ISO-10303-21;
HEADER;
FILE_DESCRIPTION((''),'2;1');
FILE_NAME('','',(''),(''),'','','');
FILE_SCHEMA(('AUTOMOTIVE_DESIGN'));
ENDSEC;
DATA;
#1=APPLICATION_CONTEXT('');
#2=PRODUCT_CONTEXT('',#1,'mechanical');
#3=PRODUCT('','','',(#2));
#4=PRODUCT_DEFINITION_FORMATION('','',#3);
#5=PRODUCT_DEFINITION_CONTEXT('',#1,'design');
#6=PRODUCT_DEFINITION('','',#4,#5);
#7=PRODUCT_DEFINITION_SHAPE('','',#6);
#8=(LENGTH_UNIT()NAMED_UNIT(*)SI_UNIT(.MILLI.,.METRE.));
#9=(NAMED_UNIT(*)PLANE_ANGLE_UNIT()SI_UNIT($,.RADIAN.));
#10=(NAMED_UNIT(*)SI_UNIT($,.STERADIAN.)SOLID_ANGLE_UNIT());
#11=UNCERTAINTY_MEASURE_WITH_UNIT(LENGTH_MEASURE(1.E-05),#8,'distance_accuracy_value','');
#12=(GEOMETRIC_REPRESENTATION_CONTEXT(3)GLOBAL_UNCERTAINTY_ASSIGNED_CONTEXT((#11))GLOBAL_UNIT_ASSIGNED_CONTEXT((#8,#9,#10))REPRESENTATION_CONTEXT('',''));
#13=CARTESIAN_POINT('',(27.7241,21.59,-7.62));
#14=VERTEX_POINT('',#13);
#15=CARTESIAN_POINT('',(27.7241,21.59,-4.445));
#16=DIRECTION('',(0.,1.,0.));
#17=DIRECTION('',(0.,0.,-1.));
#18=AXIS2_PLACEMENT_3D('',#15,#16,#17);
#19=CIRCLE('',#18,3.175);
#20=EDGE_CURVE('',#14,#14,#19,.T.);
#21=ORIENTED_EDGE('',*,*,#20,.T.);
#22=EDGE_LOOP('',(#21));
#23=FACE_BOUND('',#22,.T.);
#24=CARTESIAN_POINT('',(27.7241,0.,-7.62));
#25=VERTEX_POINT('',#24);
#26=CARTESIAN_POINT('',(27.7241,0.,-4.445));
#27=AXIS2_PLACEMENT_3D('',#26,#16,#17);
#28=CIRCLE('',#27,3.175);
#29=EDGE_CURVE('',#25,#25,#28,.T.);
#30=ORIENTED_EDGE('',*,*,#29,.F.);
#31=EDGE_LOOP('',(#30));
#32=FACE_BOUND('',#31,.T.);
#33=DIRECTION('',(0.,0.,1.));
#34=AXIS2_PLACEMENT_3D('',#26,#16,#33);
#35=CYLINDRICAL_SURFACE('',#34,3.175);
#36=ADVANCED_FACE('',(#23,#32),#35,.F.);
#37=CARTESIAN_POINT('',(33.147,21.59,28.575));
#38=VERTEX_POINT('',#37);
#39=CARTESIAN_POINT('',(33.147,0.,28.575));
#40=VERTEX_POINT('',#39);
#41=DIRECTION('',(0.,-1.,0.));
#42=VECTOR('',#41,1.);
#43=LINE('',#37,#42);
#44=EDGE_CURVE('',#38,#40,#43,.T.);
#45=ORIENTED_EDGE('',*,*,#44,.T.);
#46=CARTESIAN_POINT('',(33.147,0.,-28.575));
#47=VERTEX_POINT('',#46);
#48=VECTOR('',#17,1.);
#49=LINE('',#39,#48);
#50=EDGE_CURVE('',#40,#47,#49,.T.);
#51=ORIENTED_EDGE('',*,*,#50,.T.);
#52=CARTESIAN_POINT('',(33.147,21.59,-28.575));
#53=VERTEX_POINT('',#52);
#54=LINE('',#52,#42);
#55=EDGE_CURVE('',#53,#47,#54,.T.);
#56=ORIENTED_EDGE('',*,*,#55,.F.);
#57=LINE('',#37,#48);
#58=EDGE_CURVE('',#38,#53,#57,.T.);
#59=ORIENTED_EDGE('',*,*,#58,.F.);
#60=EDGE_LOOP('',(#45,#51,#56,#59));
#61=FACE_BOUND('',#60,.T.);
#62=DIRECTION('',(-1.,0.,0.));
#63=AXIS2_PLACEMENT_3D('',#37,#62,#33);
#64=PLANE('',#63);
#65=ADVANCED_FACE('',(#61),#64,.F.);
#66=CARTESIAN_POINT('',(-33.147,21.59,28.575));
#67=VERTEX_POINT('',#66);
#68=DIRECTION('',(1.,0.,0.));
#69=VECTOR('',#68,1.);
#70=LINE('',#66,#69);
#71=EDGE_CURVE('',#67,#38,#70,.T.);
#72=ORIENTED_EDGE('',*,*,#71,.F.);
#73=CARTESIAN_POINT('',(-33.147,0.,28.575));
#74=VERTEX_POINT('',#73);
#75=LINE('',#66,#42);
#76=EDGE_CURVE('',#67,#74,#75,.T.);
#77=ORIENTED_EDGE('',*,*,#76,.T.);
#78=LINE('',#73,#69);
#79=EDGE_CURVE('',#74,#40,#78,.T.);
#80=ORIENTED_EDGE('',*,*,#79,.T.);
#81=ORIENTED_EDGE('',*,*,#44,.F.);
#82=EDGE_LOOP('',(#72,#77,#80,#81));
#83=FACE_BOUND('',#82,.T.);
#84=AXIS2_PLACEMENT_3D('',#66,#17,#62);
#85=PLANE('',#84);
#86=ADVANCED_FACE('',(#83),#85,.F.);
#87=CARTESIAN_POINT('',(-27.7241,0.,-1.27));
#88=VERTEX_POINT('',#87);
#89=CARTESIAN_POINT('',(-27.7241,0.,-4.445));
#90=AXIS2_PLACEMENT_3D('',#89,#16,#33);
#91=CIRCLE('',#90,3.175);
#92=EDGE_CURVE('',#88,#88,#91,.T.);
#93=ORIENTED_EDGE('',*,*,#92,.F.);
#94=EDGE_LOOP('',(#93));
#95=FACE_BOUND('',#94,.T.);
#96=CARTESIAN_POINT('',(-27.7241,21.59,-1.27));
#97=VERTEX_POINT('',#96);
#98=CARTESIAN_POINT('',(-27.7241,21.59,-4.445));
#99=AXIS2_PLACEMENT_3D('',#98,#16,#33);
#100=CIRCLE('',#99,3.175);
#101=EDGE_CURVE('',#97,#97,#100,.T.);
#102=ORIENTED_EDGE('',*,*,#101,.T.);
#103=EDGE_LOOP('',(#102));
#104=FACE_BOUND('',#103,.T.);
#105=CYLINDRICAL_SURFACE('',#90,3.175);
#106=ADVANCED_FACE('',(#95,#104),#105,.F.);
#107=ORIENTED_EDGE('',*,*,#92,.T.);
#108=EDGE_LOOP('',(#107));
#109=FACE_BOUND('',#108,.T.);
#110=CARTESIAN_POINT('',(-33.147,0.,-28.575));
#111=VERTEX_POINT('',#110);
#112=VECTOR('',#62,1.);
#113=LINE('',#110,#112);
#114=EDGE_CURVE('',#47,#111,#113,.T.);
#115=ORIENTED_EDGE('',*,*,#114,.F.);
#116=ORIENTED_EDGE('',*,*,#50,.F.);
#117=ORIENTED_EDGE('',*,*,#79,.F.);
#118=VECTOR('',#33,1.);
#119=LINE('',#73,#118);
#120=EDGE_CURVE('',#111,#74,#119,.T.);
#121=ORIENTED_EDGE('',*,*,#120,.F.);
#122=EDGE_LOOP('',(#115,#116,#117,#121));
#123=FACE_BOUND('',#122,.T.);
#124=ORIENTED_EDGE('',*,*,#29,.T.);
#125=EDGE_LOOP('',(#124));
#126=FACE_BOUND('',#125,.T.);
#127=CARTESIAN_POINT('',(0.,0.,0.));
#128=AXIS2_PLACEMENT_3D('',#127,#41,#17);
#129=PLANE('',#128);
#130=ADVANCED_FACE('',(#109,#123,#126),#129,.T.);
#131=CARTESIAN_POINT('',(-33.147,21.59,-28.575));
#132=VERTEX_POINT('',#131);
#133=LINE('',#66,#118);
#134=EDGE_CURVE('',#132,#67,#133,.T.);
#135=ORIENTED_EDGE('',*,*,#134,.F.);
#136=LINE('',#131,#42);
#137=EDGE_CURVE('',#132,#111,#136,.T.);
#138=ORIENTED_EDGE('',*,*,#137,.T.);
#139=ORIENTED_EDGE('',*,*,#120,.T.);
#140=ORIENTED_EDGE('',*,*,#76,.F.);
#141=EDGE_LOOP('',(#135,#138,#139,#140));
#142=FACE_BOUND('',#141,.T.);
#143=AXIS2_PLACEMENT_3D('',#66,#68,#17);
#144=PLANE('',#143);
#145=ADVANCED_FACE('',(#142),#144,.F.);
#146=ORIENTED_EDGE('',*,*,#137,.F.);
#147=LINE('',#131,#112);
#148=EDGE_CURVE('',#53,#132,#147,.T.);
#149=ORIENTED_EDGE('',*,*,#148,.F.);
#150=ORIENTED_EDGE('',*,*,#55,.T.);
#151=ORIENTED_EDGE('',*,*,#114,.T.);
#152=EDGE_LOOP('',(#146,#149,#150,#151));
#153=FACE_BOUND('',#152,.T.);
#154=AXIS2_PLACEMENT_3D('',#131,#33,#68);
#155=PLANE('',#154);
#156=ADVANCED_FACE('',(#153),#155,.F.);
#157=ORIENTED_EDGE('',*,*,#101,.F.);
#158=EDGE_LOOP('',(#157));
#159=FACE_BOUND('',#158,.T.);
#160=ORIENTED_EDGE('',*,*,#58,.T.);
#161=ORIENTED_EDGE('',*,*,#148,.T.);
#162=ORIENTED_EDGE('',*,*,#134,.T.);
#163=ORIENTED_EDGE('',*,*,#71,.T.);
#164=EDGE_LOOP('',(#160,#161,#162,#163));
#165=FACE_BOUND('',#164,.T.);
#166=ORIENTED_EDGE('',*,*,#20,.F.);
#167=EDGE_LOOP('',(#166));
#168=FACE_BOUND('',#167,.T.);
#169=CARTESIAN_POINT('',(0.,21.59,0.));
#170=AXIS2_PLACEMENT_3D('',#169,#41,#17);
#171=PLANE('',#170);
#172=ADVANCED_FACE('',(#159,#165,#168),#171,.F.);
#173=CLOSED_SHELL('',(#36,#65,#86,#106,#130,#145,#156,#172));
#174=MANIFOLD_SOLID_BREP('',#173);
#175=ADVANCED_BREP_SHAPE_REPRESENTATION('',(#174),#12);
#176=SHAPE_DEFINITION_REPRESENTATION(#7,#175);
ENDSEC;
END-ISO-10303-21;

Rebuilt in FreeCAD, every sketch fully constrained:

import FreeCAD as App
import Part
import Sketcher
Q = App.Units.Quantity


def add_polygon(sketch, points):
    """Adds a closed chain of lines whose ends are joined by coincident constraints."""
    first, n = sketch.GeometryCount, len(points)
    for a, b in zip(points, points[1:] + points[:1]):
        sketch.addGeometry(Part.LineSegment(App.Vector(*a, 0), App.Vector(*b, 0)), False)
    for i in range(n):
        sketch.addConstraint(Sketcher.Constraint("Coincident", first + i, 2, first + (i + 1) % n, 1))

doc = App.newDocument("Part")
body = doc.addObject("PartDesign::Body", "Body")

sketch1 = body.newObject("Sketcher::SketchObject", "Sketch")
sketch1.AttachmentSupport = (doc.getObject("XZ_Plane"), [""])
sketch1.MapMode = "FlatFace"
add_polygon(sketch1, [(-33.147, -28.575), (-33.147, 28.575), (33.147, 28.575), (33.147, -28.575)])
sketch1.addConstraint(Sketcher.Constraint("Vertical", 0))
sketch1.addConstraint(Sketcher.Constraint("Horizontal", 1))
sketch1.addConstraint(Sketcher.Constraint("Vertical", 2))
sketch1.addConstraint(Sketcher.Constraint("Horizontal", 3))
sketch1.addConstraint(Sketcher.Constraint("Symmetric", 0, 2, 2, 2, -1, 1))
sketch1.addConstraint(Sketcher.Constraint("DistanceX", 1, 1, 1, 2, Q("2.61 in")))
sketch1.addConstraint(Sketcher.Constraint("DistanceY", 0, 1, 0, 2, Q("2.25 in")))
pad1 = body.newObject("PartDesign::Pad", "Pad")
pad1.Profile = sketch1
pad1.Length = Q("0.85 in")
pad1.Reversed = True

sketch2 = body.newObject("Sketcher::SketchObject", "Sketch001")
sketch2.AttachmentSupport = (doc.getObject("XZ_Plane"), [""])
sketch2.MapMode = "FlatFace"
sketch2.AttachmentOffset = App.Placement(App.Vector(0, 0, -0.85 * 25.4), App.Rotation())
sketch2.addGeometry(Part.Circle(App.Vector(-27.7241, -4.445, 0), App.Vector(0, 0, 1), 3.175), False)
sketch2.addGeometry(Part.Circle(App.Vector(27.7241, -4.445, 0), App.Vector(0, 0, 1), 3.175), False)
sketch2.addConstraint(Sketcher.Constraint("Equal", 0, 1))
sketch2.addConstraint(Sketcher.Constraint("Symmetric", 0, 3, 1, 3, -2))
sketch2.addConstraint(Sketcher.Constraint("Diameter", 0, Q("0.25 in")))
sketch2.addConstraint(Sketcher.Constraint("DistanceY", 0, 3, -1, 1, Q("0.175 in")))
sketch2.addConstraint(Sketcher.Constraint("DistanceX", 0, 3, 1, 3, Q("2.183 in")))
pocket1 = body.newObject("PartDesign::Pocket", "Pocket")
pocket1.Profile = sketch2
pocket1.Length = Q("0.85 in")
pocket1.Reversed = True

doc.recompute()
